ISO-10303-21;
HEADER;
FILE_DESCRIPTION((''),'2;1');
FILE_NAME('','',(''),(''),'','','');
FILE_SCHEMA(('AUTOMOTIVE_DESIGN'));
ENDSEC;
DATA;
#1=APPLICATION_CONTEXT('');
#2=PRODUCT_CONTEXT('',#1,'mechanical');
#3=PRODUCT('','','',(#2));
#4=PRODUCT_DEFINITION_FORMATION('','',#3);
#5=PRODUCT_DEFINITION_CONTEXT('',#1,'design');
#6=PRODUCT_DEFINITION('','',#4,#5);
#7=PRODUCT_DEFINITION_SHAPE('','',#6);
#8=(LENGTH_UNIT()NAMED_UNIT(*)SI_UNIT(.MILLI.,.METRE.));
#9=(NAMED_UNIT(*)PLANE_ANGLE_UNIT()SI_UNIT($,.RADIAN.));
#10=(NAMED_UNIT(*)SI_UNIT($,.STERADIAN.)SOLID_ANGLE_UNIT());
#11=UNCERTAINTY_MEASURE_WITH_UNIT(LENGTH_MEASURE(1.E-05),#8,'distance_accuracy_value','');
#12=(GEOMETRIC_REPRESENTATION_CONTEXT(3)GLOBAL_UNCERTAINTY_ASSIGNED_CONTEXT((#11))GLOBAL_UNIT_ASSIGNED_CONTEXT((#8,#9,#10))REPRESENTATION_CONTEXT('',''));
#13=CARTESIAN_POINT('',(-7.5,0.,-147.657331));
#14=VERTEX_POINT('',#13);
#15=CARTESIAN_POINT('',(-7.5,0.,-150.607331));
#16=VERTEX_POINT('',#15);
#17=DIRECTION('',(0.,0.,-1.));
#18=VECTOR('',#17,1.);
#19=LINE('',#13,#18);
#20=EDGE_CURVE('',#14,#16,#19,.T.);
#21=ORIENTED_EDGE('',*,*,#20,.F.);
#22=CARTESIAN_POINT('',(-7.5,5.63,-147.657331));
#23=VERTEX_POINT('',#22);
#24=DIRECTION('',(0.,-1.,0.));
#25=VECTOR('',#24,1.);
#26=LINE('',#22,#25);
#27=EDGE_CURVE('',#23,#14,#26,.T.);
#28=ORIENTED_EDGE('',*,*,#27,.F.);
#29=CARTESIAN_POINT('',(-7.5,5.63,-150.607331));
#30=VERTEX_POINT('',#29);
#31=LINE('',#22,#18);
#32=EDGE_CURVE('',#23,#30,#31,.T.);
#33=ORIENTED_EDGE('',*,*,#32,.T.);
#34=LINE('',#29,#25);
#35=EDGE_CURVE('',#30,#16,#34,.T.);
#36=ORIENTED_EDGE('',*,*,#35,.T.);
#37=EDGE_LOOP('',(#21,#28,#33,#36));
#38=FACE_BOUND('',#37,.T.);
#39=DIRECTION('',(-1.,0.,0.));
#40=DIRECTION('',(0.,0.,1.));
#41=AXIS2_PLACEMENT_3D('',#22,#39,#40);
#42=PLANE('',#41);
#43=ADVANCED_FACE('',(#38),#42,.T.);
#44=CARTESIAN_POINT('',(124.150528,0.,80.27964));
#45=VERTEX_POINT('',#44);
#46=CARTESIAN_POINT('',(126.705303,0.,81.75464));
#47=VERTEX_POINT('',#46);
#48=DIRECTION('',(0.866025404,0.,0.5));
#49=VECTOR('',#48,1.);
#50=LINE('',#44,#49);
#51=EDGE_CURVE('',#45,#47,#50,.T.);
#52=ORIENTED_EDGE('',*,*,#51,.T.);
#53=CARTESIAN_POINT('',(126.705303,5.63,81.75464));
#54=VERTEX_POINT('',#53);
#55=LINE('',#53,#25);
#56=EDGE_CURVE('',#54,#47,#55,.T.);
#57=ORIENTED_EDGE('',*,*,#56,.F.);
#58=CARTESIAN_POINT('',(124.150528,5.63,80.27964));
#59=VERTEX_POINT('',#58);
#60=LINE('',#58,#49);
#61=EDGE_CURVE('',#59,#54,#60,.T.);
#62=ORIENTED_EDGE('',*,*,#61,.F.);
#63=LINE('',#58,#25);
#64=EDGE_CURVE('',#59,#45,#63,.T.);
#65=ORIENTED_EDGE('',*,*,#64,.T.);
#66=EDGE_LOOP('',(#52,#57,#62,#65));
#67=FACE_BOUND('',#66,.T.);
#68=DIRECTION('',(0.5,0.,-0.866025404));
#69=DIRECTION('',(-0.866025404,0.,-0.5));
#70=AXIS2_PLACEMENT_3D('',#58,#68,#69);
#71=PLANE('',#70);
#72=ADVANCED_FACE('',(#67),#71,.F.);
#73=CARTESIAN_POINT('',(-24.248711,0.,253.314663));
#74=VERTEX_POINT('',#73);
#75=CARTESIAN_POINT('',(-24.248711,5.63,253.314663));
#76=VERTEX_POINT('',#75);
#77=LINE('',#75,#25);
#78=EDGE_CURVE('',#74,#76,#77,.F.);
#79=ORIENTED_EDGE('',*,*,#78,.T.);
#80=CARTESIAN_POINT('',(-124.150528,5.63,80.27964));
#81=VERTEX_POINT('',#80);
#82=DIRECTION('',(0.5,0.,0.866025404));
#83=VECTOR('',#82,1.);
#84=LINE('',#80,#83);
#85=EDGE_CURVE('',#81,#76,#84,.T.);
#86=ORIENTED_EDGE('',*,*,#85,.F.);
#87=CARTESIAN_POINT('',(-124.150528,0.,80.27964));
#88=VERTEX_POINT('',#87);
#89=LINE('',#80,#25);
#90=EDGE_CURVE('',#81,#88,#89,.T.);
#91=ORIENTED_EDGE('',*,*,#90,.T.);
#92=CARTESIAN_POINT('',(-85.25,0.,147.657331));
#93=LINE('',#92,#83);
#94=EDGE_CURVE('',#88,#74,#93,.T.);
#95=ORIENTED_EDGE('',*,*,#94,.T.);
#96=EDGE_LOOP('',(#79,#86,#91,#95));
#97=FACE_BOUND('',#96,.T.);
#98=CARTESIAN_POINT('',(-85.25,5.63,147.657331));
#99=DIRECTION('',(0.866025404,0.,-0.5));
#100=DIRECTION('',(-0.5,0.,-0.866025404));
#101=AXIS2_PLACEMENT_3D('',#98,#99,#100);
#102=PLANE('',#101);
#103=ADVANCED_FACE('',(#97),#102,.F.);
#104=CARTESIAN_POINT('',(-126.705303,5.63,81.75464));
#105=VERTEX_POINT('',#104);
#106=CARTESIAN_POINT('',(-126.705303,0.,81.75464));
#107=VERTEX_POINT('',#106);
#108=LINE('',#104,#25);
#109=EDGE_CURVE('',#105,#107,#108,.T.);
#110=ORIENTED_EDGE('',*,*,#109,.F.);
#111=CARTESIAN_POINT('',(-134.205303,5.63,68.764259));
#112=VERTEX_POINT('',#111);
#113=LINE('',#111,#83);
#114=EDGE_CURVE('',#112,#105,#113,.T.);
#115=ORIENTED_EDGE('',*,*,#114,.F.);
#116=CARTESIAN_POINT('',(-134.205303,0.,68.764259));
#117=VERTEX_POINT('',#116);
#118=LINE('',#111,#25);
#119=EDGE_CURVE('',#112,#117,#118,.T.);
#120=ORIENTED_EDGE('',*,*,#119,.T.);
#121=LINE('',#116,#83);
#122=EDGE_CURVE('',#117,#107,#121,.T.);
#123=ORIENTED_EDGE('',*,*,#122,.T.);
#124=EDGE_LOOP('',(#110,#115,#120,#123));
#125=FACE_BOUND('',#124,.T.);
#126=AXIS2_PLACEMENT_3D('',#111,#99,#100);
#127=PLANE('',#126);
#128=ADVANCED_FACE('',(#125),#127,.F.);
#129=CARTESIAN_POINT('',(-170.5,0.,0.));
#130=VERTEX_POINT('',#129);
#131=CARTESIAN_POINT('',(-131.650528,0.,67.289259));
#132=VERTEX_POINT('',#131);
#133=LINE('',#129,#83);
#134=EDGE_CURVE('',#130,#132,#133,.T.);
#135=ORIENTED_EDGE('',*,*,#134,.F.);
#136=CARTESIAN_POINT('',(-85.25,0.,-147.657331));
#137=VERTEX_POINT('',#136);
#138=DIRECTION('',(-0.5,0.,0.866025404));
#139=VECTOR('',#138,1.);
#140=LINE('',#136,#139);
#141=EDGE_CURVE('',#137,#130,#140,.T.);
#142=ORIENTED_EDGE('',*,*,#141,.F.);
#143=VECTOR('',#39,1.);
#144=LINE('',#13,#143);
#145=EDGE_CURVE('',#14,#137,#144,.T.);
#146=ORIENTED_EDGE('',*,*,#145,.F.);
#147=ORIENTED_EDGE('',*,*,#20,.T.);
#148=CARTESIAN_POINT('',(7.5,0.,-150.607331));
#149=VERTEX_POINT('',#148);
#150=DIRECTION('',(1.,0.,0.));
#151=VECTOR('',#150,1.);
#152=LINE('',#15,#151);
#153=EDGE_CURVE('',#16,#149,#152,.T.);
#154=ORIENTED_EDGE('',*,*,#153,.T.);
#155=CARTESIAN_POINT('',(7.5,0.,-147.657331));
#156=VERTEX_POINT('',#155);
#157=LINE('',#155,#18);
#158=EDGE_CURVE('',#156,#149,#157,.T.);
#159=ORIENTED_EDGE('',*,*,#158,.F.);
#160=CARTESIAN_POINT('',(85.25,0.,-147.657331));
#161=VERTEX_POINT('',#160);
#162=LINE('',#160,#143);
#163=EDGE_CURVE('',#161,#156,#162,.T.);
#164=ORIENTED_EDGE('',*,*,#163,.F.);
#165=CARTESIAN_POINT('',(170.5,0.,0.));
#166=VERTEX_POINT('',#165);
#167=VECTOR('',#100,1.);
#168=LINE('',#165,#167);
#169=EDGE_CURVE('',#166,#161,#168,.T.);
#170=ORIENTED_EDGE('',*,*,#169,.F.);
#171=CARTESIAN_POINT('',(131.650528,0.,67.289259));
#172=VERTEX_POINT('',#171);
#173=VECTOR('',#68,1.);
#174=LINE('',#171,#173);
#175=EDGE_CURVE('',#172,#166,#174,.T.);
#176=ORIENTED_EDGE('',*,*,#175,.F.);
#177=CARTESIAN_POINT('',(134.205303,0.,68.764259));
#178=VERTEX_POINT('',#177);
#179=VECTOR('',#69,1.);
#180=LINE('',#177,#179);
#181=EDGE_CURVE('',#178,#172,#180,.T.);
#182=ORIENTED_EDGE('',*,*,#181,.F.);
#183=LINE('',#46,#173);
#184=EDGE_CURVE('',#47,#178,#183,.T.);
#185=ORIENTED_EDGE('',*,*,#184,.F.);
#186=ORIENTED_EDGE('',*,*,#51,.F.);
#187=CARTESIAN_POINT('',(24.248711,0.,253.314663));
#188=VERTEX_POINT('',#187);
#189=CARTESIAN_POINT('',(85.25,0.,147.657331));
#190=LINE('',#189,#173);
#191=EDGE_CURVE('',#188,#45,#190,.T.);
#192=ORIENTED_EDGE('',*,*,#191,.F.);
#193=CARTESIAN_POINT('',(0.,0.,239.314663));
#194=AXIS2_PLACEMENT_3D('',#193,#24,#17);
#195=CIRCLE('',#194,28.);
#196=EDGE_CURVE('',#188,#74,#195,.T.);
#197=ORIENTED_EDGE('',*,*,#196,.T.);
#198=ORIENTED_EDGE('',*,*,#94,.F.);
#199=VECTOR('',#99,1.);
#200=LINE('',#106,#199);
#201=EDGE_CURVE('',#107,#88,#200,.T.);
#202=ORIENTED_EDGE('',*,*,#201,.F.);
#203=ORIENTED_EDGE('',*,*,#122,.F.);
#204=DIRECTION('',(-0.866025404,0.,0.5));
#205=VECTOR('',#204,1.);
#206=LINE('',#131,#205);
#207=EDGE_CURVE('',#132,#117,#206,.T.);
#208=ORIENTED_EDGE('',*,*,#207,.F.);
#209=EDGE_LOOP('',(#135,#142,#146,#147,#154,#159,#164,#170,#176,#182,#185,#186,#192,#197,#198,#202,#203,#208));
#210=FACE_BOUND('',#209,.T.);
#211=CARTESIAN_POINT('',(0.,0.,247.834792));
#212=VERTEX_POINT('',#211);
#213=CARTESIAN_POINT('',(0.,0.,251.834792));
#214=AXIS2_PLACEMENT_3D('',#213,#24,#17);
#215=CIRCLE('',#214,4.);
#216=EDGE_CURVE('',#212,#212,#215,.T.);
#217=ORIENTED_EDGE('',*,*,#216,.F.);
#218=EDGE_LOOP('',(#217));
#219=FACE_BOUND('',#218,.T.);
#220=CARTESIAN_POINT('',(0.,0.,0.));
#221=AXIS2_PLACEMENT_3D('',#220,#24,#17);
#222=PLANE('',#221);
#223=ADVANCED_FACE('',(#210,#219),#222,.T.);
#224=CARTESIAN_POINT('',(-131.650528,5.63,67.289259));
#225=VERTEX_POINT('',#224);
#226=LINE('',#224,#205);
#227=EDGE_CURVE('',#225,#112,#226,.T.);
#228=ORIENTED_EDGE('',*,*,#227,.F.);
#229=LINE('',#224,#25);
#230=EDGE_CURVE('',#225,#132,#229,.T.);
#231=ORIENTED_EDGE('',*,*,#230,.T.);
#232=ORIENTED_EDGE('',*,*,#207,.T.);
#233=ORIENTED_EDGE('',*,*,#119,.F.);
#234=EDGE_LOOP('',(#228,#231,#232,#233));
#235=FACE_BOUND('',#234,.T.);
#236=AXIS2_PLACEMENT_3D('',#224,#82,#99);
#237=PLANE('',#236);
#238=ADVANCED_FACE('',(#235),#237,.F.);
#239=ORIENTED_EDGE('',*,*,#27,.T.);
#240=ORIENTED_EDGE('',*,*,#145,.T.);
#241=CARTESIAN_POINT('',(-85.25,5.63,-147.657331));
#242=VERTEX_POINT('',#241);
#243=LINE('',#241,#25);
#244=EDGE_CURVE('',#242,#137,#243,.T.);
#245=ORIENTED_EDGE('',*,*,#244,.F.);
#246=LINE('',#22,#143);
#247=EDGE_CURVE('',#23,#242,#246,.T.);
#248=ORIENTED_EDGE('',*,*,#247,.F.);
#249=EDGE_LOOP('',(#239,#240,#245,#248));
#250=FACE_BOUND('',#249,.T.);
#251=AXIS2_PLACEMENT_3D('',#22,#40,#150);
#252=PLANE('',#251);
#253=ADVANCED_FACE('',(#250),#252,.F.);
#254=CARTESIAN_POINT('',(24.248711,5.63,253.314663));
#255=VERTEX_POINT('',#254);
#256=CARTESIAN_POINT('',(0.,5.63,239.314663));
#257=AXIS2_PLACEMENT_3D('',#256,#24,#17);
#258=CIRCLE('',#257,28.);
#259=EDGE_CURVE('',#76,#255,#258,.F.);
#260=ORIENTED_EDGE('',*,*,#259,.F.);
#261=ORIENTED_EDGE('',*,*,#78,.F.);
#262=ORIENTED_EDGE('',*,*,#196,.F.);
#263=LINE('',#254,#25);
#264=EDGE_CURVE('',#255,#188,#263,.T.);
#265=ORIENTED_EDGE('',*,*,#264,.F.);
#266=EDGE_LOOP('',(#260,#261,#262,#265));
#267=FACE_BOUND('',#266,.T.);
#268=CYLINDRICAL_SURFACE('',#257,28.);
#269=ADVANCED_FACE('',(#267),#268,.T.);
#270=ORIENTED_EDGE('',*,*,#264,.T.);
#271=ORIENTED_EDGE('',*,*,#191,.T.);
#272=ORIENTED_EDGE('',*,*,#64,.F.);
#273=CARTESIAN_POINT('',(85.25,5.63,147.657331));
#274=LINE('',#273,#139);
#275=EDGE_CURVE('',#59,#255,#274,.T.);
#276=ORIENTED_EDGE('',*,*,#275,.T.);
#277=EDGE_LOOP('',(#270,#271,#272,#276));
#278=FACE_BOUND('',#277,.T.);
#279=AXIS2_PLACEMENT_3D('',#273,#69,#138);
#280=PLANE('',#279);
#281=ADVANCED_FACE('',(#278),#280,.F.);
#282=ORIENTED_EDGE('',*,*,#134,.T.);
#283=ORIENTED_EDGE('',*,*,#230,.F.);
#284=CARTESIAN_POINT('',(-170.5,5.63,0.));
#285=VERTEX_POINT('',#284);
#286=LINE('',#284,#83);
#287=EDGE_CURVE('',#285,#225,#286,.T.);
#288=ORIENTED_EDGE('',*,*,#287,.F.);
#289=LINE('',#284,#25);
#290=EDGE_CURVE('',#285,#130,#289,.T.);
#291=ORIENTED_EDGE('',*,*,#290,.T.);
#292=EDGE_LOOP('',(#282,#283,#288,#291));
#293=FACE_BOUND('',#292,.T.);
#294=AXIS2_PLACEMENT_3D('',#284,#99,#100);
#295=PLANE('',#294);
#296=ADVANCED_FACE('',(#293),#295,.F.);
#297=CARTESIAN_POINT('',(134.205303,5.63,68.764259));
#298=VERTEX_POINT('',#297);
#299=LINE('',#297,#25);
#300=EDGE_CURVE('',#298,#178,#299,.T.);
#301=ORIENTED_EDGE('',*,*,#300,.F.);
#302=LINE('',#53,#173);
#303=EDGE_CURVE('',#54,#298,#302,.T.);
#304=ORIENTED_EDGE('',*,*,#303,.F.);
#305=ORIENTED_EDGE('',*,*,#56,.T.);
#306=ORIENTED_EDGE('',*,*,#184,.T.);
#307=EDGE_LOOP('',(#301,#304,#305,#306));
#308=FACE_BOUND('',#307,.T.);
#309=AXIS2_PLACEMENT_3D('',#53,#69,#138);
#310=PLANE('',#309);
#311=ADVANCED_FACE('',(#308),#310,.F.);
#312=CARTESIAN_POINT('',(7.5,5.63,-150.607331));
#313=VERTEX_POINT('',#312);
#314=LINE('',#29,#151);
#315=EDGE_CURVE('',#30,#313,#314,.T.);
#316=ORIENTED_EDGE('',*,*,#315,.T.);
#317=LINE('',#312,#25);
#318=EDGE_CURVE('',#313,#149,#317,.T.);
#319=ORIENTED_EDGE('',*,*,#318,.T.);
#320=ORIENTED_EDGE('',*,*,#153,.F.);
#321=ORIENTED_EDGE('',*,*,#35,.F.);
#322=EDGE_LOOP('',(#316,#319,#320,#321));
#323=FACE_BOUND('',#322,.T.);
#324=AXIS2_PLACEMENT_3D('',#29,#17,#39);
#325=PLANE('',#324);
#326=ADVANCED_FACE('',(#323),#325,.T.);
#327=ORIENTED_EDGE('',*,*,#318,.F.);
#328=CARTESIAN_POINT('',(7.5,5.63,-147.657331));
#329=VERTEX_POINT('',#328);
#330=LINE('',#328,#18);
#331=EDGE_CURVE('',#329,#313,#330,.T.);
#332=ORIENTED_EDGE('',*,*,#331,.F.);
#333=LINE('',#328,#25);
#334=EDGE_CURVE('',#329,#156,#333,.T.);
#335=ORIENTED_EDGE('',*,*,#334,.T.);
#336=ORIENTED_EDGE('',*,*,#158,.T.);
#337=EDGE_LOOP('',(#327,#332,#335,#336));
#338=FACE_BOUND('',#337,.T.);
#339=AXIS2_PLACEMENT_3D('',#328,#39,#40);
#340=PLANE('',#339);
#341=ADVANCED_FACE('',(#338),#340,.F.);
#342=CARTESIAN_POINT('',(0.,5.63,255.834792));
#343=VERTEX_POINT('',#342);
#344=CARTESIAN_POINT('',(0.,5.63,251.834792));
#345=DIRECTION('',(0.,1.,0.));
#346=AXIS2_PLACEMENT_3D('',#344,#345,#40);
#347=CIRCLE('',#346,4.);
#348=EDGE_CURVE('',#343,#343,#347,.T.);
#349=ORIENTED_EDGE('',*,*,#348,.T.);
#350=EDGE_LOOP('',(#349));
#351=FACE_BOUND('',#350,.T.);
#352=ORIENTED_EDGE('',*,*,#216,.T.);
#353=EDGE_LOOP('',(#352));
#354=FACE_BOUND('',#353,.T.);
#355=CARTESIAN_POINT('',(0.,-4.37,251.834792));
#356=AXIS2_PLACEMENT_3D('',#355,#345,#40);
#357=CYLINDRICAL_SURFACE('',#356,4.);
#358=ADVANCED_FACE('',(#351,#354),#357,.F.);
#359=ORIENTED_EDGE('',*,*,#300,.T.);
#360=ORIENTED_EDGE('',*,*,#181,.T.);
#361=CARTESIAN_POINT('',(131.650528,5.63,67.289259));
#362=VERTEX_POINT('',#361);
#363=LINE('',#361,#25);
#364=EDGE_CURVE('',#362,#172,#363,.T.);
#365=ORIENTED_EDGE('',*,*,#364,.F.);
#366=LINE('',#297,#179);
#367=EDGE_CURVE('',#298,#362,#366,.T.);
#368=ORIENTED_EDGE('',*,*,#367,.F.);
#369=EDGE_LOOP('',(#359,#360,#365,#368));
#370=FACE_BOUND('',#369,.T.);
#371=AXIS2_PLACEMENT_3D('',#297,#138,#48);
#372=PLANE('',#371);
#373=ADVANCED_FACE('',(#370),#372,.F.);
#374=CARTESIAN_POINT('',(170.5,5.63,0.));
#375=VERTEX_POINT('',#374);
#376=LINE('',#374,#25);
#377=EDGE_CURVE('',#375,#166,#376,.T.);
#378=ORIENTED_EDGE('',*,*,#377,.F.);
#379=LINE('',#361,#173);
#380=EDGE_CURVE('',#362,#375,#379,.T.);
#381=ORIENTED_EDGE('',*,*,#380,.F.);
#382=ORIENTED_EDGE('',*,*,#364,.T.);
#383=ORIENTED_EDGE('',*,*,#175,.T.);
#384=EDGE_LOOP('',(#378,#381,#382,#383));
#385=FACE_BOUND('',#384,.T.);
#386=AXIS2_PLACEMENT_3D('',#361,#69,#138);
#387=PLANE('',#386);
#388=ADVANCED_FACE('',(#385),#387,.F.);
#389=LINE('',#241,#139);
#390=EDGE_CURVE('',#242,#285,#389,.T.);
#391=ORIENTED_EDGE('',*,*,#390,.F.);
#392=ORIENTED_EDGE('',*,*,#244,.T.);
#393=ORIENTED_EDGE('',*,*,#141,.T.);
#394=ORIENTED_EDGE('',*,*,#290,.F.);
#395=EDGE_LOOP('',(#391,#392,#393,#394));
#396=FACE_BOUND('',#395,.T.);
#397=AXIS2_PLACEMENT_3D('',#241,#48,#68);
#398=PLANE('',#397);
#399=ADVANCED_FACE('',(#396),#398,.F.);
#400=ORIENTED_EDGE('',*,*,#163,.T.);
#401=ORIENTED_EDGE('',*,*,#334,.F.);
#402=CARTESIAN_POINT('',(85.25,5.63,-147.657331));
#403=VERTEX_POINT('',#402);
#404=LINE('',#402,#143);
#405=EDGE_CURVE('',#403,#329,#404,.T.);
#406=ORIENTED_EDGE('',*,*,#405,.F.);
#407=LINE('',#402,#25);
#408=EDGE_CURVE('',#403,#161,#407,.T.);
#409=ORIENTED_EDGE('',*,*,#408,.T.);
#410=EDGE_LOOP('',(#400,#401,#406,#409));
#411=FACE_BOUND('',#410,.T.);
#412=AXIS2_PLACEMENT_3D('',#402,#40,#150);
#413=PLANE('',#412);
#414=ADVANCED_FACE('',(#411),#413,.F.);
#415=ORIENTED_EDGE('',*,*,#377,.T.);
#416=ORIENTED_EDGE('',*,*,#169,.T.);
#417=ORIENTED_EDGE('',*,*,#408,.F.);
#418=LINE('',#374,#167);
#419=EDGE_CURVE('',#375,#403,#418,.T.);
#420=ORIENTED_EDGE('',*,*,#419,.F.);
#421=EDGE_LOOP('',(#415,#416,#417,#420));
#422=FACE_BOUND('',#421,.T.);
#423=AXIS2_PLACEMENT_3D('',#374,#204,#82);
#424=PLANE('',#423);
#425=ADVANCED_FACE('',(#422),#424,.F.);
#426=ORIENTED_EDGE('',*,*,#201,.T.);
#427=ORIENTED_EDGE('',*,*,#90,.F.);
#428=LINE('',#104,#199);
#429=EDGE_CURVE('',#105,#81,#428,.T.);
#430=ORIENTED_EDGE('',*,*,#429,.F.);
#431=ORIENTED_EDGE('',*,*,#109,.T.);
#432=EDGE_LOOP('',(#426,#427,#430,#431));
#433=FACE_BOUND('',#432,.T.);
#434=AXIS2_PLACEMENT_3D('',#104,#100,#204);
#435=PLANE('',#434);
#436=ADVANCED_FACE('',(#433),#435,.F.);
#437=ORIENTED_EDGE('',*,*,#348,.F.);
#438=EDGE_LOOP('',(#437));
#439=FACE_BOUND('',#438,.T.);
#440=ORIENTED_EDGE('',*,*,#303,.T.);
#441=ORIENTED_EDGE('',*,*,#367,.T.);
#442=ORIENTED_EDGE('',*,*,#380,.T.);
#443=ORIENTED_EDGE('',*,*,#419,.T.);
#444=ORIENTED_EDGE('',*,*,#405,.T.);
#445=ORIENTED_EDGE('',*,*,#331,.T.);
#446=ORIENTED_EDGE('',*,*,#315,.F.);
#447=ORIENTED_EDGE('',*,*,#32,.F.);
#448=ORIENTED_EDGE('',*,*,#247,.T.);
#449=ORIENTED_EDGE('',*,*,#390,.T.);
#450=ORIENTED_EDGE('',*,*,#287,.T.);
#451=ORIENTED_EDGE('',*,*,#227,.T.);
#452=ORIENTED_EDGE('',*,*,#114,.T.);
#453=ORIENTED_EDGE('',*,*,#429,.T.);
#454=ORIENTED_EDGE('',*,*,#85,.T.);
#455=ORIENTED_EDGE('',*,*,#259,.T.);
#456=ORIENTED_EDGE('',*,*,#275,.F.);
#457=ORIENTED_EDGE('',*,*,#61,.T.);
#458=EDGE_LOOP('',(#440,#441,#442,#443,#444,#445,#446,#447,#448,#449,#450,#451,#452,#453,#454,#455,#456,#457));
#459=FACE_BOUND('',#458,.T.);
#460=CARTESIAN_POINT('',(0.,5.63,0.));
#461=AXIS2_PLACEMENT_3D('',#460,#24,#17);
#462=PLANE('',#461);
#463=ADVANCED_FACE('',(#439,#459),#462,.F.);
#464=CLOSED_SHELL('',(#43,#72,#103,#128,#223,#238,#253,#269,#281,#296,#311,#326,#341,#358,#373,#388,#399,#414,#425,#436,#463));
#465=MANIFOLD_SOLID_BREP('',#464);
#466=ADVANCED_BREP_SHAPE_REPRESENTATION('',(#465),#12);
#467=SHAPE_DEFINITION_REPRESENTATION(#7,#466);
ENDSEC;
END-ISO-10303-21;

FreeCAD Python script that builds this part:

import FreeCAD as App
import Part
import Sketcher
from FreeCAD import Vector
Q = App.Units.Quantity


def edges_at(feature, points):
    """Names of the edges that pass closest to the given points."""
    edges = feature.Shape.Edges
    near = lambda p: min(range(len(edges)), key=lambda i: edges[i].distToShape(Part.Vertex(*p))[0])
    return sorted({f"Edge{near(p) + 1}" for p in points})


def add_polygon(sketch, points):
    """Adds a closed chain of lines whose ends are joined by coincident constraints."""
    first, n = sketch.GeometryCount, len(points)
    for a, b in zip(points, points[1:] + points[:1]):
        sketch.addGeometry(Part.LineSegment(App.Vector(*a, 0), App.Vector(*b, 0)), False)
    for i in range(n):
        sketch.addConstraint(Sketcher.Constraint("Coincident", first + i, 2, first + (i + 1) % n, 1))

doc = App.newDocument("Part")
body = doc.addObject("PartDesign::Body", "Body")

sketch1 = body.newObject("Sketcher::SketchObject", "Sketch")
sketch1.AttachmentSupport = (doc.getObject("XZ_Plane"), [""])
sketch1.MapMode = "FlatFace"
add_polygon(sketch1, [(-7.5, -147.7), (-85.2, -147.7), (-170.5, 0), (-131.7, 67.3), (-134.2, 68.8), (-126.7, 81.8), (-124.2, 80.3), (0, 295.3), (124.2, 80.3), (126.7, 81.8), (134.2, 68.8), (131.7, 67.3), (170.5, 0), (85.2, -147.7), (7.5, -147.7), (7.5, -150.6), (-7.5, -150.6)])
sketch1.addConstraint([
    Sketcher.Constraint("Horizontal", 0),
    Sketcher.Constraint("Horizontal", 13),
    Sketcher.Constraint("Vertical", 14),
    Sketcher.Constraint("Horizontal", 15),
    Sketcher.Constraint("Vertical", 16),
    Sketcher.Constraint("Symmetric", 1, 2, 11, 2, -1, 1),
    Sketcher.Constraint("Symmetric", 5, 2, 7, 2, -2),
    Sketcher.Constraint("Symmetric", 4, 2, 8, 2, -2),
    Sketcher.Constraint("Symmetric", 3, 2, 9, 2, -2),
    Sketcher.Constraint("Symmetric", 2, 2, 10, 2, -2),
    Sketcher.Constraint("Symmetric", 0, 2, 12, 2, -2),
    Sketcher.Constraint("PointOnObject", 1, 2, -1),
    Sketcher.Constraint("PointOnObject", 6, 2, -2),
    Sketcher.Constraint("Perpendicular", 2, 3),
    Sketcher.Constraint("Perpendicular", 3, 4),
    Sketcher.Constraint("Perpendicular", 4, 5),
    Sketcher.Constraint("Perpendicular", 5, 6),
    Sketcher.Constraint("Parallel", 1, 7),
    Sketcher.Constraint("Equal", 0, 13),
    Sketcher.Constraint("Equal", 3, 5),
    Sketcher.Constraint("DistanceX", 15, 2, 15, 1, Q("15 mm")),
    Sketcher.Constraint("Angle", 1, Q("120 deg")),
    Sketcher.Constraint("Distance", 4, Q("15 mm")),
    Sketcher.Constraint("DistanceX", 13, 2, 11, 2, Q("163 mm")),
    Sketcher.Constraint("Distance", 1, Q("170.5 mm")),
    Sketcher.Constraint("DistanceY", 14, 2, 14, 1, Q("2.95 mm")),
    Sketcher.Constraint("Distance", 3, Q("2.95 mm")),
    Sketcher.Constraint("DistanceX", 2, 2, -1, 1, Q("131.650528 mm")),
])
pad1 = body.newObject("PartDesign::Pad", "Pad")
pad1.Profile = sketch1
pad1.Length = 5.63
pad1.Reversed = True
doc.recompute()

fillet = body.newObject("PartDesign::Fillet", "Fillet")
fillet.Base = (pad1, edges_at(pad1, [(0, 2.815, 295.315)]))
fillet.Radius = 28

sketch2 = body.newObject("Sketcher::SketchObject", "Sketch001")
sketch2.AttachmentSupport = (doc.getObject("XZ_Plane"), [""])
sketch2.MapMode = "FlatFace"
sketch2.AttachmentOffset = App.Placement(Vector(0, 0, -5.63), App.Rotation())
sketch2.addGeometry(Part.Circle(Vector(0, 251.8, 0), Vector(0, 0, 1), 4), False)
sketch2.addConstraint([
    Sketcher.Constraint("PointOnObject", 0, 3, -2),
    Sketcher.Constraint("Diameter", 0, Q("8 mm")),
    Sketcher.Constraint("DistanceY", -1, 1, 0, 3, Q("251.834792 mm")),
])
pocket1 = body.newObject("PartDesign::Pocket", "Pocket")
pocket1.Profile = sketch2
pocket1.Length = 10
pocket1.Reversed = True

doc.recompute()
